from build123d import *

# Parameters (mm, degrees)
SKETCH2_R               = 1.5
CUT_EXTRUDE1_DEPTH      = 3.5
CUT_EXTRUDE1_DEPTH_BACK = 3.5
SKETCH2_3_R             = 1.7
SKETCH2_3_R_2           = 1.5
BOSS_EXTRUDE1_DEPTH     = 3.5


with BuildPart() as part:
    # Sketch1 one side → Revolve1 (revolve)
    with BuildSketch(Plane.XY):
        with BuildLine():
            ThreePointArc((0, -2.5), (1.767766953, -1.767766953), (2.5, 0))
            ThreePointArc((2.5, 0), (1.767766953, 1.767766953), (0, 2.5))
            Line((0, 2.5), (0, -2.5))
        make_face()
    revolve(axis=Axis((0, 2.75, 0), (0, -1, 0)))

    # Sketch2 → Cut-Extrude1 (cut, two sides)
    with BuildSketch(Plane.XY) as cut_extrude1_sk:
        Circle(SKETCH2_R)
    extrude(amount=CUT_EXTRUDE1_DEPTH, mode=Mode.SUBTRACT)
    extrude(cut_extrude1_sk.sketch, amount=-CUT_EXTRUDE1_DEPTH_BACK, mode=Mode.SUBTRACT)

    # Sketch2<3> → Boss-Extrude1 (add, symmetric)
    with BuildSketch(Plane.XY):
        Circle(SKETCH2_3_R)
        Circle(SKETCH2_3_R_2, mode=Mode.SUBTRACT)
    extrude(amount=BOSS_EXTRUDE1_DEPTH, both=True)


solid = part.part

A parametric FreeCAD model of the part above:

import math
import FreeCAD as App
import Part
import Sketcher
from FreeCAD import Vector

doc = App.newDocument("Part")
body = doc.addObject("PartDesign::Body", "Body")

# Sketch on XY plane
sketch1 = body.newObject("Sketcher::SketchObject", "Sketch")
sketch1.AttachmentSupport = (doc.getObject("XY_Plane"), [""])
sketch1.MapMode = "FlatFace"
sketch1.addGeometry([
    Part.ArcOfCircle(Part.Circle(Vector(0, 0, 0), Vector(0, 0, 1), 2.5), math.radians(-90), math.radians(0)),
    Part.ArcOfCircle(Part.Circle(Vector(0, 0, 0), Vector(0, 0, 1), 2.5), math.radians(0), math.radians(90)),
    Part.LineSegment(Vector(0, 2.5, 0), Vector(0, -2.5, 0)),
], False)
sketch1.addConstraint([
    Sketcher.Constraint("Tangent", 0, 2, 1, 1),
    Sketcher.Constraint("Coincident", 1, 2, 2, 1),
    Sketcher.Constraint("Coincident", 2, 2, 0, 1),
    Sketcher.Constraint("Vertical", 2),
    Sketcher.Constraint("Coincident", 0, 3, -1, 1),
    Sketcher.Constraint("Equal", 0, 1),
    Sketcher.Constraint("PointOnObject", 0, 2, -1),
    Sketcher.Constraint("PointOnObject", 1, 2, -2),
    Sketcher.Constraint("Radius", 0, 2.5),
])
revolution = body.newObject("PartDesign::Revolution", "Revolution")
revolution.Profile = sketch1
revolution.ReferenceAxis = (sketch1, ["V_Axis"])
revolution.Angle = 360

# Sketch on XY plane
sketch2 = body.newObject("Sketcher::SketchObject", "Sketch001")
sketch2.AttachmentSupport = (doc.getObject("XY_Plane"), [""])
sketch2.MapMode = "FlatFace"
sketch2.addGeometry(Part.Circle(Vector(0, 0, 0), Vector(0, 0, 1), 1.5), False)
sketch2.addConstraint([
    Sketcher.Constraint("Coincident", 0, 3, -1, 1),
    Sketcher.Constraint("Diameter", 0, 3.0),
])
pocket1 = body.newObject("PartDesign::Pocket", "Pocket")
pocket1.Profile = sketch2
pocket1.Type = "ThroughAll"
pocket1.Midplane = True

# Sketch on XY plane
sketch3 = body.newObject("Sketcher::SketchObject", "Sketch002")
sketch3.AttachmentSupport = (doc.getObject("XY_Plane"), [""])
sketch3.MapMode = "FlatFace"
sketch3.addGeometry([
    Part.Circle(Vector(0, 0, 0), Vector(0, 0, 1), 1.7),
    Part.Circle(Vector(0, 0, 0), Vector(0, 0, 1), 1.5),
], False)
sketch3.addConstraint([
    Sketcher.Constraint("Coincident", 0, 3, -1, 1),
    Sketcher.Constraint("Coincident", 1, 3, -1, 1),
    Sketcher.Constraint("Diameter", 1, 3.0),
    Sketcher.Constraint("Diameter", 0, 3.4),
])
pad1 = body.newObject("PartDesign::Pad", "Pad")
pad1.Profile = sketch3
pad1.Length = 7
pad1.Midplane = True

doc.recompute()
